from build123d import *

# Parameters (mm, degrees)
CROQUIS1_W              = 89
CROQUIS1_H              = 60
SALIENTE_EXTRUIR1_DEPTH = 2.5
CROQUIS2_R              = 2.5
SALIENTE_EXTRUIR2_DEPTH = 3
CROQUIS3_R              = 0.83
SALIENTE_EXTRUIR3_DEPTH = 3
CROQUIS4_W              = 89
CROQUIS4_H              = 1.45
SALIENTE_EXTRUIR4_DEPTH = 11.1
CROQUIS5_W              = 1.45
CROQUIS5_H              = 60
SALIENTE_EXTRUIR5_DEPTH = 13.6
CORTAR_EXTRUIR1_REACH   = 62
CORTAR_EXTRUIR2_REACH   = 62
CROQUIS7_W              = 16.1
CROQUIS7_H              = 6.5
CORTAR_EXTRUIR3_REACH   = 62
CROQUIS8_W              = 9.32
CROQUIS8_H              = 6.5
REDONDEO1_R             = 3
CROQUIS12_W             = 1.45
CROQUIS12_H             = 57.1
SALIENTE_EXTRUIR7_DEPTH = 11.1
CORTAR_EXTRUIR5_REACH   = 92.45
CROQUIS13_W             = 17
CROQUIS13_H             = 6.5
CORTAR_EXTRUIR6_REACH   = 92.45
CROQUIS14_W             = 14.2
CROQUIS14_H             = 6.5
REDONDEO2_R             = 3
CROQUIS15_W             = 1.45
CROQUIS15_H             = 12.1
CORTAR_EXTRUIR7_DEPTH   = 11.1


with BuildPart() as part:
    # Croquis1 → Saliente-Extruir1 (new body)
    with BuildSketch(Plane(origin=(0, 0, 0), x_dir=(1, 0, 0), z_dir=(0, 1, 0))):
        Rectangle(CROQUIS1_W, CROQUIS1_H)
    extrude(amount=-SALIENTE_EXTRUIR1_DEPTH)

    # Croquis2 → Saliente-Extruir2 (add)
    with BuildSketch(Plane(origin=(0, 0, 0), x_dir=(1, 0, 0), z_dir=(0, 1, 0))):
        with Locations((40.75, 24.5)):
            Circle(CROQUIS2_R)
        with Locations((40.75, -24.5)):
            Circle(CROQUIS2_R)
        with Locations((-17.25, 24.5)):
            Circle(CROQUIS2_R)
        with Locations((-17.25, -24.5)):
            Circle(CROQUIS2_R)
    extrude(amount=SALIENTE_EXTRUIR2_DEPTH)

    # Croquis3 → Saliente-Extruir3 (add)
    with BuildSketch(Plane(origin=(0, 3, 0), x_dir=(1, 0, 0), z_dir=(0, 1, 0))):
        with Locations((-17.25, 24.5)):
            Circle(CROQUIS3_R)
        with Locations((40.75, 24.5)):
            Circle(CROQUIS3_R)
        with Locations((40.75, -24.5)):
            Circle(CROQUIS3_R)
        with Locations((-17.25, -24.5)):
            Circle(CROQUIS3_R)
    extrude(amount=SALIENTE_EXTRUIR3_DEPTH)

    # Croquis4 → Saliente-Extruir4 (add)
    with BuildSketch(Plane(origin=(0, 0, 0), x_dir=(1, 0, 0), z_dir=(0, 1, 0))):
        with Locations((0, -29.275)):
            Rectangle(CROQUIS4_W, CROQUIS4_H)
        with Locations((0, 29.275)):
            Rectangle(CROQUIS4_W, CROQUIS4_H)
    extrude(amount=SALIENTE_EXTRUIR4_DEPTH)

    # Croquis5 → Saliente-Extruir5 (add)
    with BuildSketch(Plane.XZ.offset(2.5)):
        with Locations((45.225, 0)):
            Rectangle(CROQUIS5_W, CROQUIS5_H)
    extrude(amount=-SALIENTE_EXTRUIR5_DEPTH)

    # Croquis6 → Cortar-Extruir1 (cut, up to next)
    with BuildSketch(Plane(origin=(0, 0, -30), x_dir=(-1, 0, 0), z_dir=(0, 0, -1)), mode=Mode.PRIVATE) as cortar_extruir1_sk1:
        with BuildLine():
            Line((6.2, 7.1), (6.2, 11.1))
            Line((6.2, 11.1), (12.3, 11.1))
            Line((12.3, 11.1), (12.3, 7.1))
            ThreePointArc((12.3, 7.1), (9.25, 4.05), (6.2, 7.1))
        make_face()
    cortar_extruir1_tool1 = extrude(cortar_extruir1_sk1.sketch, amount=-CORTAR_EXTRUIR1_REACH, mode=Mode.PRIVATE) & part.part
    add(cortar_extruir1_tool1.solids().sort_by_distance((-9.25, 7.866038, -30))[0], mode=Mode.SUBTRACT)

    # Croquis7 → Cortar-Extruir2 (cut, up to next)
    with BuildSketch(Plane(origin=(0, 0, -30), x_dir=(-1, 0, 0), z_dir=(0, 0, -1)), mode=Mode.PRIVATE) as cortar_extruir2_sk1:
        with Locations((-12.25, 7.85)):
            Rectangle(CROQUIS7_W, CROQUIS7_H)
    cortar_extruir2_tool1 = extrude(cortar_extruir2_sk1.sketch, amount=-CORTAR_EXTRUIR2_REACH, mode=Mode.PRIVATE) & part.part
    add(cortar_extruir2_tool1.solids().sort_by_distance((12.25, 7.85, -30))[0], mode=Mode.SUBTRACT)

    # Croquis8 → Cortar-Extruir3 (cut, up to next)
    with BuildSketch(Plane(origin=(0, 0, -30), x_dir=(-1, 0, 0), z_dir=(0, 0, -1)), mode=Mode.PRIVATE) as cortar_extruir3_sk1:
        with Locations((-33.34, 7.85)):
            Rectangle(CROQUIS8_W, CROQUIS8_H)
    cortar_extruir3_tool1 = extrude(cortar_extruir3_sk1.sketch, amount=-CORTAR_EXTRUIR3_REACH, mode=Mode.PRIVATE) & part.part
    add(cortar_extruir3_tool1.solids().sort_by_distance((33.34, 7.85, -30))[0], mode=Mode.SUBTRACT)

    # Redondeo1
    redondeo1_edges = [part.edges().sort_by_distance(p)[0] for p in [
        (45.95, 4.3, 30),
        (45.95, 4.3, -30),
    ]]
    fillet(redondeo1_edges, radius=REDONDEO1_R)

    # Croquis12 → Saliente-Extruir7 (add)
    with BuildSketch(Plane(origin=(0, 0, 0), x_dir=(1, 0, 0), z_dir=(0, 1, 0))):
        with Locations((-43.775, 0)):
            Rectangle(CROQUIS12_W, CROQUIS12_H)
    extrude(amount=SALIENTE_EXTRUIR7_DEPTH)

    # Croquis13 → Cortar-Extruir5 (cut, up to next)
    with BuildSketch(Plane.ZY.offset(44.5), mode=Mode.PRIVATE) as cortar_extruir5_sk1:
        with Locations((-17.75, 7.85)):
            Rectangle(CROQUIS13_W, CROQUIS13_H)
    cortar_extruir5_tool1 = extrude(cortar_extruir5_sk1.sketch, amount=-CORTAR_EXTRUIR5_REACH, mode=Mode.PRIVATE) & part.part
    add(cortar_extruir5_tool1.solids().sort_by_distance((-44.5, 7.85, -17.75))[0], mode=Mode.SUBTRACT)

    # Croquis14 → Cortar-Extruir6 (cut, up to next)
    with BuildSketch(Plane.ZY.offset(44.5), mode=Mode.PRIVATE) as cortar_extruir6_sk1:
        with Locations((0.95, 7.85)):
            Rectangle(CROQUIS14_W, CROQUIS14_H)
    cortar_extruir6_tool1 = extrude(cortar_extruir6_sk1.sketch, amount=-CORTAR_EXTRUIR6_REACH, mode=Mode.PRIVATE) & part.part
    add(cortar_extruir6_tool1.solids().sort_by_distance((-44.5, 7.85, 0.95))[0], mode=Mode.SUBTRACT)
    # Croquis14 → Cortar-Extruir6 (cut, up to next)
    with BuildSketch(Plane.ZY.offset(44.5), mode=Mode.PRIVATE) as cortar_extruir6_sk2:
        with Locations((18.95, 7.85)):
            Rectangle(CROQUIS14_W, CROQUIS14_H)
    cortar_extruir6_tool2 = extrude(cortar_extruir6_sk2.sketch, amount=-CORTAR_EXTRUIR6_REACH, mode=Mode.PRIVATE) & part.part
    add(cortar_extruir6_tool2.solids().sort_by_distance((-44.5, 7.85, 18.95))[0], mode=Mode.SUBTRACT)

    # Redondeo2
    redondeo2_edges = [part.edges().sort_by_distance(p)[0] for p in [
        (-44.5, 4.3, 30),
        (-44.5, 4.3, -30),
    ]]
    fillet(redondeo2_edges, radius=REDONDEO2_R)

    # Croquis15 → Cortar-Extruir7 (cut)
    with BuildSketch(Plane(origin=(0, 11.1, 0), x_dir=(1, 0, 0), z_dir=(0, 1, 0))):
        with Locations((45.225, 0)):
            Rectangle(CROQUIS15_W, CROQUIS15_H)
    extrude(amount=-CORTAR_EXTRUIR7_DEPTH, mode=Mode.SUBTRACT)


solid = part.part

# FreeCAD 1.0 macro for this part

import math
import FreeCAD as App
import Part
import Sketcher
from FreeCAD import Vector
Q = App.Units.Quantity


def edges_at(feature, points):
    """Names of the edges that pass closest to the given points."""
    edges = feature.Shape.Edges
    near = lambda p: min(range(len(edges)), key=lambda i: edges[i].distToShape(Part.Vertex(*p))[0])
    return sorted({f"Edge{near(p) + 1}" for p in points})

doc = App.newDocument("Part")
body = doc.addObject("PartDesign::Body", "Body")

# Sketch on XZ plane
sketch1 = body.newObject("Sketcher::SketchObject", "Sketch")
sketch1.AttachmentSupport = (doc.getObject("XZ_Plane"), [""])
sketch1.MapMode = "FlatFace"
sketch1.addGeometry([
    Part.LineSegment(Vector(-44.5, -30, 0), Vector(-44.5, 30, 0)),
    Part.LineSegment(Vector(-44.5, 30, 0), Vector(44.5, 30, 0)),
    Part.LineSegment(Vector(44.5, 30, 0), Vector(44.5, -30, 0)),
    Part.LineSegment(Vector(44.5, -30, 0), Vector(-44.5, -30, 0)),
], False)
sketch1.addConstraint([
    Sketcher.Constraint("Coincident", 0, 2, 1, 1),
    Sketcher.Constraint("Coincident", 1, 2, 2, 1),
    Sketcher.Constraint("Coincident", 2, 2, 3, 1),
    Sketcher.Constraint("Coincident", 3, 2, 0, 1),
    Sketcher.Constraint("Vertical", 0),
    Sketcher.Constraint("Horizontal", 1),
    Sketcher.Constraint("Vertical", 2),
    Sketcher.Constraint("Horizontal", 3),
    Sketcher.Constraint("Symmetric", 0, 2, 2, 2, -1, 1),
    Sketcher.Constraint("DistanceX", 1, 1, 1, 2, Q("89 mm")),
    Sketcher.Constraint("DistanceY", 0, 1, 0, 2, Q("60 mm")),
])
pad1 = body.newObject("PartDesign::Pad", "Pad")
pad1.Profile = sketch1
pad1.Length = 2.5

# Sketch on XZ plane
sketch2 = body.newObject("Sketcher::SketchObject", "Sketch001")
sketch2.AttachmentSupport = (doc.getObject("XZ_Plane"), [""])
sketch2.MapMode = "FlatFace"
sketch2.addGeometry([
    Part.Circle(Vector(40.75, -24.5, 0), Vector(0, 0, 1), 2.5),
    Part.Circle(Vector(40.75, 24.5, 0), Vector(0, 0, 1), 2.5),
    Part.Circle(Vector(-17.25, -24.5, 0), Vector(0, 0, 1), 2.5),
    Part.Circle(Vector(-17.25, 24.5, 0), Vector(0, 0, 1), 2.5),
], False)
sketch2.addConstraint([
    Sketcher.Constraint("Equal", 0, 1),
    Sketcher.Constraint("Equal", 1, 2),
    Sketcher.Constraint("Equal", 2, 3),
    Sketcher.Constraint("Symmetric", 0, 3, 1, 3, -1),
    Sketcher.Constraint("Symmetric", 2, 3, 3, 3, -1),
    Sketcher.Constraint("Horizontal", 0, 3, 2, 3),
    Sketcher.Constraint("Diameter", 0, Q("5 mm")),
    Sketcher.Constraint("DistanceY", 0, 3, 1, 3, Q("49 mm")),
    Sketcher.Constraint("DistanceX", 2, 3, 0, 3, Q("58 mm")),
    Sketcher.Constraint("DistanceX", -1, 1, 0, 3, Q("40.75 mm")),
])
pad2 = body.newObject("PartDesign::Pad", "Pad001")
pad2.Profile = sketch2
pad2.Length = 3
pad2.Reversed = True

# Sketch on XZ plane
sketch3 = body.newObject("Sketcher::SketchObject", "Sketch002")
sketch3.AttachmentSupport = (doc.getObject("XZ_Plane"), [""])
sketch3.MapMode = "FlatFace"
sketch3.AttachmentOffset = App.Placement(Vector(0, 0, -3), App.Rotation())
sketch3.addGeometry([
    Part.Circle(Vector(-17.25, -24.5, 0), Vector(0, 0, 1), 0.83),
    Part.Circle(Vector(40.75, -24.5, 0), Vector(0, 0, 1), 0.83),
    Part.Circle(Vector(40.75, 24.5, 0), Vector(0, 0, 1), 0.83),
    Part.Circle(Vector(-17.25, 24.5, 0), Vector(0, 0, 1), 0.83),
], False)
sketch3.addConstraint([
    Sketcher.Constraint("Equal", 0, 1),
    Sketcher.Constraint("Equal", 1, 2),
    Sketcher.Constraint("Equal", 2, 3),
    Sketcher.Constraint("Symmetric", 1, 3, 2, 3, -1),
    Sketcher.Constraint("Symmetric", 0, 3, 3, 3, -1),
    Sketcher.Constraint("Horizontal", 0, 3, 1, 3),
    Sketcher.Constraint("Diameter", 0, Q("1.66 mm")),
    Sketcher.Constraint("DistanceX", 0, 3, 1, 3, Q("58 mm")),
    Sketcher.Constraint("DistanceY", 1, 3, 2, 3, Q("49 mm")),
    Sketcher.Constraint("DistanceX", 0, 3, -1, 1, Q("17.25 mm")),
])
pad3 = body.newObject("PartDesign::Pad", "Pad002")
pad3.Profile = sketch3
pad3.Length = 3
pad3.Reversed = True

# Sketch on XZ plane
sketch4 = body.newObject("Sketcher::SketchObject", "Sketch003")
sketch4.AttachmentSupport = (doc.getObject("XZ_Plane"), [""])
sketch4.MapMode = "FlatFace"
sketch4.addGeometry([
    Part.LineSegment(Vector(-44.5, 28.55, 0), Vector(-44.5, 30, 0)),  # 0
    Part.LineSegment(Vector(-44.5, 30, 0), Vector(44.5, 30, 0)),  # 1
    Part.LineSegment(Vector(44.5, 30, 0), Vector(44.5, 28.55, 0)),  # 2
    Part.LineSegment(Vector(44.5, 28.55, 0), Vector(-44.5, 28.55, 0)),  # 3
    Part.LineSegment(Vector(-44.5, -30, 0), Vector(-44.5, -28.55, 0)),  # 4
    Part.LineSegment(Vector(-44.5, -28.55, 0), Vector(44.5, -28.55, 0)),  # 5
    Part.LineSegment(Vector(44.5, -28.55, 0), Vector(44.5, -30, 0)),  # 6
    Part.LineSegment(Vector(44.5, -30, 0), Vector(-44.5, -30, 0)),  # 7
], False)
sketch4.addConstraint([
    Sketcher.Constraint("Coincident", 0, 2, 1, 1),
    Sketcher.Constraint("Coincident", 1, 2, 2, 1),
    Sketcher.Constraint("Coincident", 2, 2, 3, 1),
    Sketcher.Constraint("Coincident", 3, 2, 0, 1),
    Sketcher.Constraint("Coincident", 4, 2, 5, 1),
    Sketcher.Constraint("Coincident", 5, 2, 6, 1),
    Sketcher.Constraint("Coincident", 6, 2, 7, 1),
    Sketcher.Constraint("Coincident", 7, 2, 4, 1),
    Sketcher.Constraint("Vertical", 0),
    Sketcher.Constraint("Horizontal", 1),
    Sketcher.Constraint("Vertical", 2),
    Sketcher.Constraint("Horizontal", 3),
    Sketcher.Constraint("Vertical", 4),
    Sketcher.Constraint("Horizontal", 5),
    Sketcher.Constraint("Vertical", 6),
    Sketcher.Constraint("Horizontal", 7),
    Sketcher.Constraint("Symmetric", 2, 2, 4, 2, -1, 1),
    Sketcher.Constraint("Symmetric", 0, 2, 6, 2, -1, 1),
    Sketcher.Constraint("Vertical", 3, 2, 4, 2),
    Sketcher.Constraint("DistanceX", 1, 1, 1, 2, Q("89 mm")),
    Sketcher.Constraint("DistanceY", -1, 1, 0, 2, Q("30 mm")),
    Sketcher.Constraint("DistanceY", 0, 1, 0, 2, Q("1.45 mm")),
])
pad4 = body.newObject("PartDesign::Pad", "Pad003")
pad4.Profile = sketch4
pad4.Length = 11.1
pad4.Reversed = True

# Sketch on XZ plane
sketch5 = body.newObject("Sketcher::SketchObject", "Sketch004")
sketch5.AttachmentSupport = (doc.getObject("XZ_Plane"), [""])
sketch5.MapMode = "FlatFace"
sketch5.AttachmentOffset = App.Placement(Vector(0, 0, 2.5), App.Rotation())
sketch5.addGeometry([
    Part.LineSegment(Vector(44.5, 30, 0), Vector(44.5, -30, 0)),
    Part.LineSegment(Vector(44.5, -30, 0), Vector(45.95, -30, 0)),
    Part.LineSegment(Vector(45.95, -30, 0), Vector(45.95, 30, 0)),
    Part.LineSegment(Vector(45.95, 30, 0), Vector(44.5, 30, 0)),
], False)
sketch5.addConstraint([
    Sketcher.Constraint("Coincident", 0, 2, 1, 1),
    Sketcher.Constraint("Coincident", 1, 2, 2, 1),
    Sketcher.Constraint("Coincident", 2, 2, 3, 1),
    Sketcher.Constraint("Coincident", 3, 2, 0, 1),
    Sketcher.Constraint("Vertical", 0),
    Sketcher.Constraint("Horizontal", 1),
    Sketcher.Constraint("Vertical", 2),
    Sketcher.Constraint("Horizontal", 3),
    Sketcher.Constraint("DistanceY", 0, 2, 0, 1, Q("60 mm")),
    Sketcher.Constraint("DistanceY", 0, 2, -1, 1, Q("30 mm")),
    Sketcher.Constraint("DistanceX", 1, 1, 1, 2, Q("1.45 mm")),
    Sketcher.Constraint("DistanceX", -1, 1, 0, 2, Q("44.5 mm")),
])
pad5 = body.newObject("PartDesign::Pad", "Pad004")
pad5.Profile = sketch5
pad5.Length = 13.6
pad5.Reversed = True

# Sketch on XY plane
sketch6 = body.newObject("Sketcher::SketchObject", "Sketch005")
sketch6.AttachmentSupport = (doc.getObject("XY_Plane"), [""])
sketch6.MapMode = "FlatFace"
sketch6.AttachmentOffset = App.Placement(Vector(0, 0, -30), App.Rotation())
sketch6.addGeometry([
    Part.LineSegment(Vector(-6.2, 11.1, 0), Vector(-6.2, 7.1, 0)),
    Part.ArcOfCircle(Part.Circle(Vector(-9.25, 7.1, 0), Vector(0, 0, 1), 3.05), math.radians(180), math.radians(360)),
    Part.LineSegment(Vector(-12.3, 7.1, 0), Vector(-12.3, 11.1, 0)),
    Part.LineSegment(Vector(-12.3, 11.1, 0), Vector(-6.2, 11.1, 0)),
], False)
sketch6.addConstraint([
    Sketcher.Constraint("Tangent", 0, 2, 1, 2),
    Sketcher.Constraint("Tangent", 1, 1, 2, 1),
    Sketcher.Constraint("Coincident", 2, 2, 3, 1),
    Sketcher.Constraint("Coincident", 3, 2, 0, 1),
    Sketcher.Constraint("Vertical", 0),
    Sketcher.Constraint("Vertical", 2),
    Sketcher.Constraint("Horizontal", 3),
    Sketcher.Constraint("DistanceY", 0, 2, 0, 1, Q("4 mm")),
    Sketcher.Constraint("Radius", 1, Q("3.05 mm")),
    Sketcher.Constraint("DistanceY", -1, 1, 1, 3, Q("7.1 mm")),
    Sketcher.Constraint("DistanceX", 0, 2, -1, 1, Q("6.2 mm")),
])
pocket1 = body.newObject("PartDesign::Pocket", "Pocket")
pocket1.Profile = sketch6
pocket1.Type = "UpToFirst"
pocket1.Reversed = True

# Sketch on XY plane
sketch7 = body.newObject("Sketcher::SketchObject", "Sketch006")
sketch7.AttachmentSupport = (doc.getObject("XY_Plane"), [""])
sketch7.MapMode = "FlatFace"
sketch7.AttachmentOffset = App.Placement(Vector(0, 0, -30), App.Rotation())
sketch7.addGeometry([
    Part.LineSegment(Vector(20.3, 11.1, 0), Vector(20.3, 4.6, 0)),
    Part.LineSegment(Vector(20.3, 4.6, 0), Vector(4.2, 4.6, 0)),
    Part.LineSegment(Vector(4.2, 4.6, 0), Vector(4.2, 11.1, 0)),
    Part.LineSegment(Vector(4.2, 11.1, 0), Vector(20.3, 11.1, 0)),
], False)
sketch7.addConstraint([
    Sketcher.Constraint("Coincident", 0, 2, 1, 1),
    Sketcher.Constraint("Coincident", 1, 2, 2, 1),
    Sketcher.Constraint("Coincident", 2, 2, 3, 1),
    Sketcher.Constraint("Coincident", 3, 2, 0, 1),
    Sketcher.Constraint("Vertical", 0),
    Sketcher.Constraint("Horizontal", 1),
    Sketcher.Constraint("Vertical", 2),
    Sketcher.Constraint("Horizontal", 3),
    Sketcher.Constraint("DistanceX", 1, 2, 1, 1, Q("16.1 mm")),
    Sketcher.Constraint("DistanceY", 0, 2, 0, 1, Q("6.5 mm")),
    Sketcher.Constraint("DistanceX", -1, 1, 0, 2, Q("20.3 mm")),
    Sketcher.Constraint("DistanceY", -1, 1, 0, 2, Q("4.6 mm")),
])
pocket2 = body.newObject("PartDesign::Pocket", "Pocket001")
pocket2.Profile = sketch7
pocket2.Type = "UpToFirst"
pocket2.Reversed = True

# Sketch on XY plane
sketch8 = body.newObject("Sketcher::SketchObject", "Sketch007")
sketch8.AttachmentSupport = (doc.getObject("XY_Plane"), [""])
sketch8.MapMode = "FlatFace"
sketch8.AttachmentOffset = App.Placement(Vector(0, 0, -30), App.Rotation())
sketch8.addGeometry([
    Part.LineSegment(Vector(38, 11.1, 0), Vector(38, 4.6, 0)),
    Part.LineSegment(Vector(38, 4.6, 0), Vector(28.68, 4.6, 0)),
    Part.LineSegment(Vector(28.68, 4.6, 0), Vector(28.68, 11.1, 0)),
    Part.LineSegment(Vector(28.68, 11.1, 0), Vector(38, 11.1, 0)),
], False)
sketch8.addConstraint([
    Sketcher.Constraint("Coincident", 0, 2, 1, 1),
    Sketcher.Constraint("Coincident", 1, 2, 2, 1),
    Sketcher.Constraint("Coincident", 2, 2, 3, 1),
    Sketcher.Constraint("Coincident", 3, 2, 0, 1),
    Sketcher.Constraint("Vertical", 0),
    Sketcher.Constraint("Horizontal", 1),
    Sketcher.Constraint("Vertical", 2),
    Sketcher.Constraint("Horizontal", 3),
    Sketcher.Constraint("DistanceY", 0, 2, 0, 1, Q("6.5 mm")),
    Sketcher.Constraint("DistanceX", -1, 1, 0, 2, Q("38 mm")),
    Sketcher.Constraint("DistanceX", 1, 2, 1, 1, Q("9.32 mm")),
    Sketcher.Constraint("DistanceY", -1, 1, 0, 2, Q("4.6 mm")),
])
pocket3 = body.newObject("PartDesign::Pocket", "Pocket002")
pocket3.Profile = sketch8
pocket3.Type = "UpToFirst"
pocket3.Reversed = True
doc.recompute()

fillet = body.newObject("PartDesign::Fillet", "Fillet")
fillet.Base = (pocket3, edges_at(pocket3, [(45.95, 4.3, 30), (45.95, 4.3, -30)]))
fillet.Radius = 3

# Sketch on XZ plane
sketch9 = body.newObject("Sketcher::SketchObject", "Sketch008")
sketch9.AttachmentSupport = (doc.getObject("XZ_Plane"), [""])
sketch9.MapMode = "FlatFace"
sketch9.addGeometry([
    Part.LineSegment(Vector(-44.5, -28.55, 0), Vector(-44.5, 28.55, 0)),
    Part.LineSegment(Vector(-44.5, 28.55, 0), Vector(-43.05, 28.55, 0)),
    Part.LineSegment(Vector(-43.05, 28.55, 0), Vector(-43.05, -28.55, 0)),
    Part.LineSegment(Vector(-43.05, -28.55, 0), Vector(-44.5, -28.55, 0)),
], False)
sketch9.addConstraint([
    Sketcher.Constraint("Coincident", 0, 2, 1, 1),
    Sketcher.Constraint("Coincident", 1, 2, 2, 1),
    Sketcher.Constraint("Coincident", 2, 2, 3, 1),
    Sketcher.Constraint("Coincident", 3, 2, 0, 1),
    Sketcher.Constraint("Vertical", 0),
    Sketcher.Constraint("Horizontal", 1),
    Sketcher.Constraint("Vertical", 2),
    Sketcher.Constraint("Horizontal", 3),
    Sketcher.Constraint("DistanceY", 0, 1, 0, 2, Q("57.1 mm")),
    Sketcher.Constraint("DistanceX", 1, 1, 1, 2, Q("1.45 mm")),
    Sketcher.Constraint("DistanceX", 0, 2, -1, 1, Q("44.5 mm")),
    Sketcher.Constraint("DistanceY", -1, 1, 0, 2, Q("28.55 mm")),
])
pad6 = body.newObject("PartDesign::Pad", "Pad005")
pad6.Profile = sketch9
pad6.Length = 11.1
pad6.Reversed = True

# Sketch on YZ plane
sketch10 = body.newObject("Sketcher::SketchObject", "Sketch009")
sketch10.AttachmentSupport = (doc.getObject("YZ_Plane"), [""])
sketch10.MapMode = "FlatFace"
sketch10.AttachmentOffset = App.Placement(Vector(0, 0, -44.5), App.Rotation())
sketch10.addGeometry([
    Part.LineSegment(Vector(11.1, -26.25, 0), Vector(4.6, -26.25, 0)),
    Part.LineSegment(Vector(4.6, -26.25, 0), Vector(4.6, -9.25, 0)),
    Part.LineSegment(Vector(4.6, -9.25, 0), Vector(11.1, -9.25, 0)),
    Part.LineSegment(Vector(11.1, -9.25, 0), Vector(11.1, -26.25, 0)),
], False)
sketch10.addConstraint([
    Sketcher.Constraint("Coincident", 0, 2, 1, 1),
    Sketcher.Constraint("Coincident", 1, 2, 2, 1),
    Sketcher.Constraint("Coincident", 2, 2, 3, 1),
    Sketcher.Constraint("Coincident", 3, 2, 0, 1),
    Sketcher.Constraint("Horizontal", 0),
    Sketcher.Constraint("Vertical", 1),
    Sketcher.Constraint("Horizontal", 2),
    Sketcher.Constraint("Vertical", 3),
    Sketcher.Constraint("DistanceY", 1, 1, 1, 2, Q("17 mm")),
    Sketcher.Constraint("DistanceX", 0, 2, 0, 1, Q("6.5 mm")),
    Sketcher.Constraint("DistanceX", -1, 1, 0, 2, Q("4.6 mm")),
    Sketcher.Constraint("DistanceY", 0, 2, -1, 1, Q("26.25 mm")),
])
pocket4 = body.newObject("PartDesign::Pocket", "Pocket003")
pocket4.Profile = sketch10
pocket4.Type = "UpToFirst"
pocket4.Reversed = True

# Sketch on YZ plane
sketch11 = body.newObject("Sketcher::SketchObject", "Sketch010")
sketch11.AttachmentSupport = (doc.getObject("YZ_Plane"), [""])
sketch11.MapMode = "FlatFace"
sketch11.AttachmentOffset = App.Placement(Vector(0, 0, -44.5), App.Rotation())
sketch11.addGeometry([
    Part.LineSegment(Vector(11.1, -6.15, 0), Vector(4.6, -6.15, 0)),
    Part.LineSegment(Vector(4.6, -6.15, 0), Vector(4.6, 8.05, 0)),
    Part.LineSegment(Vector(4.6, 8.05, 0), Vector(11.1, 8.05, 0)),
    Part.LineSegment(Vector(11.1, 8.05, 0), Vector(11.1, -6.15, 0)),
], False)
sketch11.addConstraint([
    Sketcher.Constraint("Coincident", 0, 2, 1, 1),
    Sketcher.Constraint("Coincident", 1, 2, 2, 1),
    Sketcher.Constraint("Coincident", 2, 2, 3, 1),
    Sketcher.Constraint("Coincident", 3, 2, 0, 1),
    Sketcher.Constraint("Horizontal", 0),
    Sketcher.Constraint("Vertical", 1),
    Sketcher.Constraint("Horizontal", 2),
    Sketcher.Constraint("Vertical", 3),
    Sketcher.Constraint("DistanceX", 0, 2, 0, 1, Q("6.5 mm")),
    Sketcher.Constraint("DistanceY", 1, 1, 1, 2, Q("14.2 mm")),
    Sketcher.Constraint("DistanceX", -1, 1, 0, 2, Q("4.6 mm")),
    Sketcher.Constraint("DistanceY", 0, 2, -1, 1, Q("6.15 mm")),
])
pocket5 = body.newObject("PartDesign::Pocket", "Pocket004")
pocket5.Profile = sketch11
pocket5.Type = "UpToFirst"
pocket5.Reversed = True

# Sketch on YZ plane
sketch12 = body.newObject("Sketcher::SketchObject", "Sketch011")
sketch12.AttachmentSupport = (doc.getObject("YZ_Plane"), [""])
sketch12.MapMode = "FlatFace"
sketch12.AttachmentOffset = App.Placement(Vector(0, 0, -44.5), App.Rotation())
sketch12.addGeometry([
    Part.LineSegment(Vector(11.1, 11.85, 0), Vector(4.6, 11.85, 0)),
    Part.LineSegment(Vector(4.6, 11.85, 0), Vector(4.6, 26.05, 0)),
    Part.LineSegment(Vector(4.6, 26.05, 0), Vector(11.1, 26.05, 0)),
    Part.LineSegment(Vector(11.1, 26.05, 0), Vector(11.1, 11.85, 0)),
], False)
sketch12.addConstraint([
    Sketcher.Constraint("Coincident", 0, 2, 1, 1),
    Sketcher.Constraint("Coincident", 1, 2, 2, 1),
    Sketcher.Constraint("Coincident", 2, 2, 3, 1),
    Sketcher.Constraint("Coincident", 3, 2, 0, 1),
    Sketcher.Constraint("Horizontal", 0),
    Sketcher.Constraint("Vertical", 1),
    Sketcher.Constraint("Horizontal", 2),
    Sketcher.Constraint("Vertical", 3),
    Sketcher.Constraint("DistanceX", 0, 2, 0, 1, Q("6.5 mm")),
    Sketcher.Constraint("DistanceY", 1, 1, 1, 2, Q("14.2 mm")),
    Sketcher.Constraint("DistanceX", -1, 1, 0, 2, Q("4.6 mm")),
    Sketcher.Constraint("DistanceY", -1, 1, 0, 2, Q("11.85 mm")),
])
pocket6 = body.newObject("PartDesign::Pocket", "Pocket005")
pocket6.Profile = sketch12
pocket6.Type = "UpToFirst"
pocket6.Reversed = True
doc.recompute()

fillet2 = body.newObject("PartDesign::Fillet", "Fillet001")
fillet2.Base = (pocket6, edges_at(pocket6, [(-44.5, 4.3, 30), (-44.5, 4.3, -30)]))
fillet2.Radius = 3

# Sketch on XZ plane
sketch13 = body.newObject("Sketcher::SketchObject", "Sketch012")
sketch13.AttachmentSupport = (doc.getObject("XZ_Plane"), [""])
sketch13.MapMode = "FlatFace"
sketch13.AttachmentOffset = App.Placement(Vector(0, 0, -11.1), App.Rotation())
sketch13.addGeometry([
    Part.LineSegment(Vector(44.5, -6.05, 0), Vector(44.5, 6.05, 0)),
    Part.LineSegment(Vector(44.5, 6.05, 0), Vector(45.95, 6.05, 0)),
    Part.LineSegment(Vector(45.95, 6.05, 0), Vector(45.95, -6.05, 0)),
    Part.LineSegment(Vector(45.95, -6.05, 0), Vector(44.5, -6.05, 0)),
], False)
sketch13.addConstraint([
    Sketcher.Constraint("Coincident", 0, 2, 1, 1),
    Sketcher.Constraint("Coincident", 1, 2, 2, 1),
    Sketcher.Constraint("Coincident", 2, 2, 3, 1),
    Sketcher.Constraint("Coincident", 3, 2, 0, 1),
    Sketcher.Constraint("Vertical", 0),
    Sketcher.Constraint("Horizontal", 1),
    Sketcher.Constraint("Vertical", 2),
    Sketcher.Constraint("Horizontal", 3),
    Sketcher.Constraint("DistanceY", 0, 1, 0, 2, Q("12.1 mm")),
    Sketcher.Constraint("DistanceX", 1, 1, 1, 2, Q("1.45 mm")),
    Sketcher.Constraint("DistanceX", -1, 1, 0, 2, Q("44.5 mm")),
    Sketcher.Constraint("DistanceY", -1, 1, 0, 2, Q("6.05 mm")),
])
pocket7 = body.newObject("PartDesign::Pocket", "Pocket006")
pocket7.Profile = sketch13
pocket7.Length = 11.1
pocket7.Reversed = True

doc.recompute()
